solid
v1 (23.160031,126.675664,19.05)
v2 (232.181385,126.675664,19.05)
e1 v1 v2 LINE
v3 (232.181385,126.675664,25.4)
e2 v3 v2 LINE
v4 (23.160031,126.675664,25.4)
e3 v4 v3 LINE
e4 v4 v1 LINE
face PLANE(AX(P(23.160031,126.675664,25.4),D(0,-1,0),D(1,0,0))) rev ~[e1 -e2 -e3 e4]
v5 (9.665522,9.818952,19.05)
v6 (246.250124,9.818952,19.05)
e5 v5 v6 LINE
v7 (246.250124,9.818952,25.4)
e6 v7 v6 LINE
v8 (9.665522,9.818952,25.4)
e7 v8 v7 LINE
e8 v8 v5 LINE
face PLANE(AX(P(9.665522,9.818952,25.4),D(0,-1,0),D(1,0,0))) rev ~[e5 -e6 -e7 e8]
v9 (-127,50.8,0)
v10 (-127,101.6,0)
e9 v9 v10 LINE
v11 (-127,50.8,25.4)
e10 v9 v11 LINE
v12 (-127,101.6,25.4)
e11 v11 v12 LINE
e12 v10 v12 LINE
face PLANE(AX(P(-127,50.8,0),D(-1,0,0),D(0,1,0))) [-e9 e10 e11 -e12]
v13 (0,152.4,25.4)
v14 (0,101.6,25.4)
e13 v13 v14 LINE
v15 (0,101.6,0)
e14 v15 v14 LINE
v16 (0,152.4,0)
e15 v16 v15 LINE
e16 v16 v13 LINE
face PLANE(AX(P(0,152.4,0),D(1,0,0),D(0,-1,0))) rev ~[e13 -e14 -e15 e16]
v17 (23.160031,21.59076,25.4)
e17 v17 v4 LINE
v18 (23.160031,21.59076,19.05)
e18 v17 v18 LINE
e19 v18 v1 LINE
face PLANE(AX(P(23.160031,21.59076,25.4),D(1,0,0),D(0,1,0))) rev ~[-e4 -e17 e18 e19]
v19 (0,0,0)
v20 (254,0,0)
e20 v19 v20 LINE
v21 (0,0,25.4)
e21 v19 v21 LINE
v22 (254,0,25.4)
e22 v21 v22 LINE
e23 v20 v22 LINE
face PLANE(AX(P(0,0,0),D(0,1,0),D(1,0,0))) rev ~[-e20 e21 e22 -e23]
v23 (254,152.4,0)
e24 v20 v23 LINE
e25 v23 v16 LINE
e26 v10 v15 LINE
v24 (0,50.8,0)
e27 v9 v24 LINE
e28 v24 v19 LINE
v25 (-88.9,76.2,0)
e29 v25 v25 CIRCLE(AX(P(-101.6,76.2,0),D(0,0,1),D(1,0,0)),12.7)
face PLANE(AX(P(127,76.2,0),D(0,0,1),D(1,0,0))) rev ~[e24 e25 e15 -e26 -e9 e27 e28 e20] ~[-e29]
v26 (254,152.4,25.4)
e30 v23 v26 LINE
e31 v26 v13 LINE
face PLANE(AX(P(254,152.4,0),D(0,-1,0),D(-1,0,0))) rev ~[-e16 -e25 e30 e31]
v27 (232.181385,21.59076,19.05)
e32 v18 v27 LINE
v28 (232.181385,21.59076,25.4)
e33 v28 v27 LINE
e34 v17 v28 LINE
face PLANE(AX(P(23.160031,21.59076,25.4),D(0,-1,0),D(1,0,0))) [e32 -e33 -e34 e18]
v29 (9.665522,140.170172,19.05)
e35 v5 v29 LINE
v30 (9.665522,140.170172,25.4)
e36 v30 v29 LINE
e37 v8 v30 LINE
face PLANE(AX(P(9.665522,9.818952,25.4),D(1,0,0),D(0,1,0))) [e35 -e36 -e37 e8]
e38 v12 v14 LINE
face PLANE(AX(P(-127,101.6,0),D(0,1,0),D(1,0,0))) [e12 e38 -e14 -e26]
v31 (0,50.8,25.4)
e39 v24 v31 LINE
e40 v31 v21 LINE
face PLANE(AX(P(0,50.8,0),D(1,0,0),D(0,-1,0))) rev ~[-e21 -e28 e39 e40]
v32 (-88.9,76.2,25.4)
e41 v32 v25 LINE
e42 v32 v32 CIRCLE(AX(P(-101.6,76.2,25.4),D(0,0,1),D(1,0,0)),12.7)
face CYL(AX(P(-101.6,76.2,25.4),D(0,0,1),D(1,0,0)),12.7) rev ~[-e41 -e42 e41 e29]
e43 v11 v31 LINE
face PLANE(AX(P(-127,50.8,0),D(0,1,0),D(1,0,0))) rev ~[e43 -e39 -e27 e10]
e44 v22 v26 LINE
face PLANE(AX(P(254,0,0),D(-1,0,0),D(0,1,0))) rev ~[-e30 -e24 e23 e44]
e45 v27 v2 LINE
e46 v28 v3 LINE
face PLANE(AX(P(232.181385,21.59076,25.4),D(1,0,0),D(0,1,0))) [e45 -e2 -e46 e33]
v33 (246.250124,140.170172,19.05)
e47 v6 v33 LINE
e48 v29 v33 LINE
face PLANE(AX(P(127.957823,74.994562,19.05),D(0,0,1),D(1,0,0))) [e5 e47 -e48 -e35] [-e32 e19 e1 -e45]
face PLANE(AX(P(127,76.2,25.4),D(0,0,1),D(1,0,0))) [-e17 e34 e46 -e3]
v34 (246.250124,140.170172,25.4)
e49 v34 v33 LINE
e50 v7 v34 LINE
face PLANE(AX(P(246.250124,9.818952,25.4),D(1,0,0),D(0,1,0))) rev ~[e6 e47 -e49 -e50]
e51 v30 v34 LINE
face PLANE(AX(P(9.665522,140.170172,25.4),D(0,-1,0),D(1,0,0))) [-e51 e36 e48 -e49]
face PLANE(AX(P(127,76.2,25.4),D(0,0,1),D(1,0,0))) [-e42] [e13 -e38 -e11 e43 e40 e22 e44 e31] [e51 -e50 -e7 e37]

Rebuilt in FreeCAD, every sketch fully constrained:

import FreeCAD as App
import Part
import Sketcher
Q = App.Units.Quantity


def add_polygon(sketch, points):
    """Adds a closed chain of lines whose ends are joined by coincident constraints."""
    first, n = sketch.GeometryCount, len(points)
    for a, b in zip(points, points[1:] + points[:1]):
        sketch.addGeometry(Part.LineSegment(App.Vector(*a, 0), App.Vector(*b, 0)), False)
    for i in range(n):
        sketch.addConstraint(Sketcher.Constraint("Coincident", first + i, 2, first + (i + 1) % n, 1))

doc = App.newDocument("Part")
body = doc.addObject("PartDesign::Body", "Body")

sketch1 = body.newObject("Sketcher::SketchObject", "Sketch")
sketch1.AttachmentSupport = (doc.getObject("XY_Plane"), [""])
sketch1.MapMode = "FlatFace"
add_polygon(sketch1, [(0, 0), (254, 0), (254, 152), (0, 152), (0, 102), (-127, 102), (-127, 51), (0, 51)])
sketch1.addConstraint([
    Sketcher.Constraint("Horizontal", 0),
    Sketcher.Constraint("Vertical", 1),
    Sketcher.Constraint("Horizontal", 2),
    Sketcher.Constraint("Vertical", 3),
    Sketcher.Constraint("Horizontal", 4),
    Sketcher.Constraint("Vertical", 5),
    Sketcher.Constraint("Horizontal", 6),
    Sketcher.Constraint("Vertical", 7),
    Sketcher.Constraint("Coincident", 7, 2, -1, 1),
    Sketcher.Constraint("PointOnObject", 2, 2, -2),
    Sketcher.Constraint("Equal", 3, 5),
    Sketcher.Constraint("Equal", 5, 7),
    Sketcher.Constraint("DistanceX", 0, 1, 0, 2, Q("10 in")),
    Sketcher.Constraint("DistanceX", 4, 2, 4, 1, Q("5 in")),
    Sketcher.Constraint("DistanceY", 1, 1, 1, 2, Q("6 in")),
])
pad1 = body.newObject("PartDesign::Pad", "Pad")
pad1.Profile = sketch1
pad1.Length = Q("1 in")

sketch2 = body.newObject("Sketcher::SketchObject", "Sketch001")
sketch2.AttachmentSupport = (doc.getObject("XY_Plane"), [""])
sketch2.MapMode = "FlatFace"
sketch2.AttachmentOffset = App.Placement(App.Vector(0, 0, 1 * 25.4), App.Rotation())
sketch2.addGeometry(Part.Circle(App.Vector(-102, 76, 0), App.Vector(0, 0, 1), 13), False)
sketch2.addConstraint([
    Sketcher.Constraint("Diameter", 0, Q("1 in")),
    Sketcher.Constraint("DistanceX", 0, 3, -1, 1, Q("4 in")),
    Sketcher.Constraint("DistanceY", -1, 1, 0, 3, Q("3 in")),
])
pocket1 = body.newObject("PartDesign::Pocket", "Pocket")
pocket1.Profile = sketch2
pocket1.Length = Q("1 in")

sketch3 = body.newObject("Sketcher::SketchObject", "Sketch002")
sketch3.AttachmentSupport = (doc.getObject("XY_Plane"), [""])
sketch3.MapMode = "FlatFace"
sketch3.AttachmentOffset = App.Placement(App.Vector(0, 0, 1 * 25.4), App.Rotation())
add_polygon(sketch3, [(10, 140), (10, 10), (246, 10), (246, 140)])
add_polygon(sketch3, [(232, 22), (23, 22), (23, 127), (232, 127)])
sketch3.addConstraint([
    Sketcher.Constraint("Vertical", 0),
    Sketcher.Constraint("Horizontal", 1),
    Sketcher.Constraint("Vertical", 2),
    Sketcher.Constraint("Horizontal", 3),
    Sketcher.Constraint("Horizontal", 4),
    Sketcher.Constraint("Vertical", 5),
    Sketcher.Constraint("Horizontal", 6),
    Sketcher.Constraint("Vertical", 7),
    Sketcher.Constraint("DistanceX", 1, 1, 1, 2, 236.584601),
    Sketcher.Constraint("DistanceY", 0, 2, 0, 1, 130.351219),
    Sketcher.Constraint("DistanceX", 4, 2, 4, 1, 209.021354),
    Sketcher.Constraint("DistanceY", 5, 1, 5, 2, 105.084905),
    Sketcher.Constraint("DistanceY", -1, 1, 2, 2, 140.170172),
    Sketcher.Constraint("DistanceX", -1, 1, 4, 2, 23.160031),
    Sketcher.Constraint("DistanceY", -1, 1, 4, 2, 21.59076),
    Sketcher.Constraint("DistanceX", 0, 2, 4, 2, 13.494509),
])
pocket2 = body.newObject("PartDesign::Pocket", "Pocket001")
pocket2.Profile = sketch3
pocket2.Length = Q("0.25 in")

doc.recompute()
